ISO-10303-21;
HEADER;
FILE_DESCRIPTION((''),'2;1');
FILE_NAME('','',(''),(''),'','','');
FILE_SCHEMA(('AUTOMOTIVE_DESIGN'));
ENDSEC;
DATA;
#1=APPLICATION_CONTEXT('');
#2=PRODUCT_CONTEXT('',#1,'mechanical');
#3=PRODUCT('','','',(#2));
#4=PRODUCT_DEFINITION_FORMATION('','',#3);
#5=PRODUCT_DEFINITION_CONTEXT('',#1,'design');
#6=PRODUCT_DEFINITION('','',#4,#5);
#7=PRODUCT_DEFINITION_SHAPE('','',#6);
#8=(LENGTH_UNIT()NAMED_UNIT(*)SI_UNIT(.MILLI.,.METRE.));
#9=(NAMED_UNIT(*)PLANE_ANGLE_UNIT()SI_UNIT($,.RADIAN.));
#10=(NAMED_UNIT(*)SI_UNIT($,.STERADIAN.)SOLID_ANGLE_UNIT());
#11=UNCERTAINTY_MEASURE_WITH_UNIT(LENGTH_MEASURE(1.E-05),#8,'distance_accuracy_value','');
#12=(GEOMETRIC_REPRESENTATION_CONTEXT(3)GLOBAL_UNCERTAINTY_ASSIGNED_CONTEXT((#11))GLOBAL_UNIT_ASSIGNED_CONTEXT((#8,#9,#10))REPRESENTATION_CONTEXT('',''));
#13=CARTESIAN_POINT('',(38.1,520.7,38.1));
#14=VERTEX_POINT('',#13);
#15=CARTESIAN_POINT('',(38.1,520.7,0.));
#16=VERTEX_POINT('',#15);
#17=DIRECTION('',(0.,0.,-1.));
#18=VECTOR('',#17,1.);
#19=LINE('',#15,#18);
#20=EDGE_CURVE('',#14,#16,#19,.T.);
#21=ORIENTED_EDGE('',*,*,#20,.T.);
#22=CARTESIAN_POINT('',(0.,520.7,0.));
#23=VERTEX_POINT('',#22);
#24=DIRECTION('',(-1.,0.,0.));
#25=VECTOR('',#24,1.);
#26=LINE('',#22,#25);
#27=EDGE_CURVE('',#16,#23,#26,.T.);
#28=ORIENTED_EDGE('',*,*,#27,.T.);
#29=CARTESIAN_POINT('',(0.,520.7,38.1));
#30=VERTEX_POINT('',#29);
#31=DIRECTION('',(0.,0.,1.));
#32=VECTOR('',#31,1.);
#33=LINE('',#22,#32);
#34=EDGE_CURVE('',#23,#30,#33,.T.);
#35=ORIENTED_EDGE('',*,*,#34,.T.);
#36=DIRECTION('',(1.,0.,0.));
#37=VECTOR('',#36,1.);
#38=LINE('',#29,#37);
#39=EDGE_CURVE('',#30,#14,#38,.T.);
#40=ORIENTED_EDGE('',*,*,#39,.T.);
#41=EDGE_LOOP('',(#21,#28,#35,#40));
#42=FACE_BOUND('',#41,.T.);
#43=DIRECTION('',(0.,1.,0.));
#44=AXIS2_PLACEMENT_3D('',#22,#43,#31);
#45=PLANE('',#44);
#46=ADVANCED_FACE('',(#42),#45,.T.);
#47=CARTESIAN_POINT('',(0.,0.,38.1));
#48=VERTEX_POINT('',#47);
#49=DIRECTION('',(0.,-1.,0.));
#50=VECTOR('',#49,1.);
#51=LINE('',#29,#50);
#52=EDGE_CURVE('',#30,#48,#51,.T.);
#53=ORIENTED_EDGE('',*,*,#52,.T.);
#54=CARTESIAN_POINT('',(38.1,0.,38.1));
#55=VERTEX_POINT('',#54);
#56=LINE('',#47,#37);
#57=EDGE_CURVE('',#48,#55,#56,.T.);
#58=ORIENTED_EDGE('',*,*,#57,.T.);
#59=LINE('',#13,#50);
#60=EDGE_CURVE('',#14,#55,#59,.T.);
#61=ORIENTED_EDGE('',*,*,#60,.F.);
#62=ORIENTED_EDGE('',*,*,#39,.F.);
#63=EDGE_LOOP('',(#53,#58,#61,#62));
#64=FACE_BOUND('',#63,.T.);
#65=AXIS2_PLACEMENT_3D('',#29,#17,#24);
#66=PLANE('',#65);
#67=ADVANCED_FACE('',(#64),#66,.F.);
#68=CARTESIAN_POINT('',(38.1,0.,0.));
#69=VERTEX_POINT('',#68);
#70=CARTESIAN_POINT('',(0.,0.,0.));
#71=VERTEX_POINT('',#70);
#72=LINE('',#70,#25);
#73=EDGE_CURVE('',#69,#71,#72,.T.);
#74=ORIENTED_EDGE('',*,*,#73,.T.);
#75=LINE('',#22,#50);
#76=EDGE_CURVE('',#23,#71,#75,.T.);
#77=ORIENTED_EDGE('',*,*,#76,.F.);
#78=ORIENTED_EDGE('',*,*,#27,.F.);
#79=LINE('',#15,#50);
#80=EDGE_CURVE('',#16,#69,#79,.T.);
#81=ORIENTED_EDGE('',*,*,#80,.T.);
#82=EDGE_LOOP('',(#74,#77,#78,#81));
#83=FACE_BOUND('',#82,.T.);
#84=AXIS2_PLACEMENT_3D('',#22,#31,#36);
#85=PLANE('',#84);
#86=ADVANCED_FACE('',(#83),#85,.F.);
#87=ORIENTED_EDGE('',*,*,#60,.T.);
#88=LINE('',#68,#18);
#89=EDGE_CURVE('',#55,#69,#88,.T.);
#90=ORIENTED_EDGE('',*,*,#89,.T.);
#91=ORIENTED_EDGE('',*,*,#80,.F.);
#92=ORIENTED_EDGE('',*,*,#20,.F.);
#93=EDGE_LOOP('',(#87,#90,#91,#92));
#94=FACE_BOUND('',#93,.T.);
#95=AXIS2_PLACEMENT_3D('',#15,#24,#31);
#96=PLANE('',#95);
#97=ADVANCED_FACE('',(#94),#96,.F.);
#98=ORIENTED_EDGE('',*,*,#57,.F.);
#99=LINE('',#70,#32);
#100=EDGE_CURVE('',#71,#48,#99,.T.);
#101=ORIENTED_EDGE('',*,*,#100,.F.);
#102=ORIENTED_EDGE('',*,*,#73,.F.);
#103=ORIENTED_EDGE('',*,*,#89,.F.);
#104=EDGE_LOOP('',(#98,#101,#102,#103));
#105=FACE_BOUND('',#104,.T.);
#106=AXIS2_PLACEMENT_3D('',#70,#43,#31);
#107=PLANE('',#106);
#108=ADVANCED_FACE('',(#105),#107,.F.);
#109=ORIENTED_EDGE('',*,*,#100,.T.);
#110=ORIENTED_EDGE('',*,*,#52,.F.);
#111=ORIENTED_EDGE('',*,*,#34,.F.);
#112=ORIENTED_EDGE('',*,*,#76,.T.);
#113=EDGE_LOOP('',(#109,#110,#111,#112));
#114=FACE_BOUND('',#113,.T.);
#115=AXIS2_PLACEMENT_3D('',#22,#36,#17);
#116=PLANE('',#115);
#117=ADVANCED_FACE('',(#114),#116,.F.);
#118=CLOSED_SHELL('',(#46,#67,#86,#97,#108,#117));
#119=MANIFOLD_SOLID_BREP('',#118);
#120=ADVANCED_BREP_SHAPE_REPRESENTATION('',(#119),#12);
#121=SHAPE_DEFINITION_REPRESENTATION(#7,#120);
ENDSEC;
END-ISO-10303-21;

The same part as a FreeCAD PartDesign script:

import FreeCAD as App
import Part
import Sketcher
Q = App.Units.Quantity


def add_polygon(sketch, points):
    """Adds a closed chain of lines whose ends are joined by coincident constraints."""
    first, n = sketch.GeometryCount, len(points)
    for a, b in zip(points, points[1:] + points[:1]):
        sketch.addGeometry(Part.LineSegment(App.Vector(*a, 0), App.Vector(*b, 0)), False)
    for i in range(n):
        sketch.addConstraint(Sketcher.Constraint("Coincident", first + i, 2, first + (i + 1) % n, 1))

doc = App.newDocument("Part")
body = doc.addObject("PartDesign::Body", "Body")

sketch1 = body.newObject("Sketcher::SketchObject", "Sketch")
sketch1.AttachmentSupport = (doc.getObject("XZ_Plane"), [""])
sketch1.MapMode = "FlatFace"
add_polygon(sketch1, [(0, 0), (0, 38), (38, 38), (38, 0)])
sketch1.addConstraint([
    Sketcher.Constraint("Vertical", 0),
    Sketcher.Constraint("Horizontal", 1),
    Sketcher.Constraint("Vertical", 2),
    Sketcher.Constraint("Horizontal", 3),
    Sketcher.Constraint("Coincident", 3, 2, -1, 1),
    Sketcher.Constraint("Equal", 3, 0),
    Sketcher.Constraint("DistanceX", 1, 1, 1, 2, Q("1.5 in")),
])
pad1 = body.newObject("PartDesign::Pad", "Pad")
pad1.Profile = sketch1
pad1.Length = Q("20.5 in")
pad1.Reversed = True

doc.recompute()
